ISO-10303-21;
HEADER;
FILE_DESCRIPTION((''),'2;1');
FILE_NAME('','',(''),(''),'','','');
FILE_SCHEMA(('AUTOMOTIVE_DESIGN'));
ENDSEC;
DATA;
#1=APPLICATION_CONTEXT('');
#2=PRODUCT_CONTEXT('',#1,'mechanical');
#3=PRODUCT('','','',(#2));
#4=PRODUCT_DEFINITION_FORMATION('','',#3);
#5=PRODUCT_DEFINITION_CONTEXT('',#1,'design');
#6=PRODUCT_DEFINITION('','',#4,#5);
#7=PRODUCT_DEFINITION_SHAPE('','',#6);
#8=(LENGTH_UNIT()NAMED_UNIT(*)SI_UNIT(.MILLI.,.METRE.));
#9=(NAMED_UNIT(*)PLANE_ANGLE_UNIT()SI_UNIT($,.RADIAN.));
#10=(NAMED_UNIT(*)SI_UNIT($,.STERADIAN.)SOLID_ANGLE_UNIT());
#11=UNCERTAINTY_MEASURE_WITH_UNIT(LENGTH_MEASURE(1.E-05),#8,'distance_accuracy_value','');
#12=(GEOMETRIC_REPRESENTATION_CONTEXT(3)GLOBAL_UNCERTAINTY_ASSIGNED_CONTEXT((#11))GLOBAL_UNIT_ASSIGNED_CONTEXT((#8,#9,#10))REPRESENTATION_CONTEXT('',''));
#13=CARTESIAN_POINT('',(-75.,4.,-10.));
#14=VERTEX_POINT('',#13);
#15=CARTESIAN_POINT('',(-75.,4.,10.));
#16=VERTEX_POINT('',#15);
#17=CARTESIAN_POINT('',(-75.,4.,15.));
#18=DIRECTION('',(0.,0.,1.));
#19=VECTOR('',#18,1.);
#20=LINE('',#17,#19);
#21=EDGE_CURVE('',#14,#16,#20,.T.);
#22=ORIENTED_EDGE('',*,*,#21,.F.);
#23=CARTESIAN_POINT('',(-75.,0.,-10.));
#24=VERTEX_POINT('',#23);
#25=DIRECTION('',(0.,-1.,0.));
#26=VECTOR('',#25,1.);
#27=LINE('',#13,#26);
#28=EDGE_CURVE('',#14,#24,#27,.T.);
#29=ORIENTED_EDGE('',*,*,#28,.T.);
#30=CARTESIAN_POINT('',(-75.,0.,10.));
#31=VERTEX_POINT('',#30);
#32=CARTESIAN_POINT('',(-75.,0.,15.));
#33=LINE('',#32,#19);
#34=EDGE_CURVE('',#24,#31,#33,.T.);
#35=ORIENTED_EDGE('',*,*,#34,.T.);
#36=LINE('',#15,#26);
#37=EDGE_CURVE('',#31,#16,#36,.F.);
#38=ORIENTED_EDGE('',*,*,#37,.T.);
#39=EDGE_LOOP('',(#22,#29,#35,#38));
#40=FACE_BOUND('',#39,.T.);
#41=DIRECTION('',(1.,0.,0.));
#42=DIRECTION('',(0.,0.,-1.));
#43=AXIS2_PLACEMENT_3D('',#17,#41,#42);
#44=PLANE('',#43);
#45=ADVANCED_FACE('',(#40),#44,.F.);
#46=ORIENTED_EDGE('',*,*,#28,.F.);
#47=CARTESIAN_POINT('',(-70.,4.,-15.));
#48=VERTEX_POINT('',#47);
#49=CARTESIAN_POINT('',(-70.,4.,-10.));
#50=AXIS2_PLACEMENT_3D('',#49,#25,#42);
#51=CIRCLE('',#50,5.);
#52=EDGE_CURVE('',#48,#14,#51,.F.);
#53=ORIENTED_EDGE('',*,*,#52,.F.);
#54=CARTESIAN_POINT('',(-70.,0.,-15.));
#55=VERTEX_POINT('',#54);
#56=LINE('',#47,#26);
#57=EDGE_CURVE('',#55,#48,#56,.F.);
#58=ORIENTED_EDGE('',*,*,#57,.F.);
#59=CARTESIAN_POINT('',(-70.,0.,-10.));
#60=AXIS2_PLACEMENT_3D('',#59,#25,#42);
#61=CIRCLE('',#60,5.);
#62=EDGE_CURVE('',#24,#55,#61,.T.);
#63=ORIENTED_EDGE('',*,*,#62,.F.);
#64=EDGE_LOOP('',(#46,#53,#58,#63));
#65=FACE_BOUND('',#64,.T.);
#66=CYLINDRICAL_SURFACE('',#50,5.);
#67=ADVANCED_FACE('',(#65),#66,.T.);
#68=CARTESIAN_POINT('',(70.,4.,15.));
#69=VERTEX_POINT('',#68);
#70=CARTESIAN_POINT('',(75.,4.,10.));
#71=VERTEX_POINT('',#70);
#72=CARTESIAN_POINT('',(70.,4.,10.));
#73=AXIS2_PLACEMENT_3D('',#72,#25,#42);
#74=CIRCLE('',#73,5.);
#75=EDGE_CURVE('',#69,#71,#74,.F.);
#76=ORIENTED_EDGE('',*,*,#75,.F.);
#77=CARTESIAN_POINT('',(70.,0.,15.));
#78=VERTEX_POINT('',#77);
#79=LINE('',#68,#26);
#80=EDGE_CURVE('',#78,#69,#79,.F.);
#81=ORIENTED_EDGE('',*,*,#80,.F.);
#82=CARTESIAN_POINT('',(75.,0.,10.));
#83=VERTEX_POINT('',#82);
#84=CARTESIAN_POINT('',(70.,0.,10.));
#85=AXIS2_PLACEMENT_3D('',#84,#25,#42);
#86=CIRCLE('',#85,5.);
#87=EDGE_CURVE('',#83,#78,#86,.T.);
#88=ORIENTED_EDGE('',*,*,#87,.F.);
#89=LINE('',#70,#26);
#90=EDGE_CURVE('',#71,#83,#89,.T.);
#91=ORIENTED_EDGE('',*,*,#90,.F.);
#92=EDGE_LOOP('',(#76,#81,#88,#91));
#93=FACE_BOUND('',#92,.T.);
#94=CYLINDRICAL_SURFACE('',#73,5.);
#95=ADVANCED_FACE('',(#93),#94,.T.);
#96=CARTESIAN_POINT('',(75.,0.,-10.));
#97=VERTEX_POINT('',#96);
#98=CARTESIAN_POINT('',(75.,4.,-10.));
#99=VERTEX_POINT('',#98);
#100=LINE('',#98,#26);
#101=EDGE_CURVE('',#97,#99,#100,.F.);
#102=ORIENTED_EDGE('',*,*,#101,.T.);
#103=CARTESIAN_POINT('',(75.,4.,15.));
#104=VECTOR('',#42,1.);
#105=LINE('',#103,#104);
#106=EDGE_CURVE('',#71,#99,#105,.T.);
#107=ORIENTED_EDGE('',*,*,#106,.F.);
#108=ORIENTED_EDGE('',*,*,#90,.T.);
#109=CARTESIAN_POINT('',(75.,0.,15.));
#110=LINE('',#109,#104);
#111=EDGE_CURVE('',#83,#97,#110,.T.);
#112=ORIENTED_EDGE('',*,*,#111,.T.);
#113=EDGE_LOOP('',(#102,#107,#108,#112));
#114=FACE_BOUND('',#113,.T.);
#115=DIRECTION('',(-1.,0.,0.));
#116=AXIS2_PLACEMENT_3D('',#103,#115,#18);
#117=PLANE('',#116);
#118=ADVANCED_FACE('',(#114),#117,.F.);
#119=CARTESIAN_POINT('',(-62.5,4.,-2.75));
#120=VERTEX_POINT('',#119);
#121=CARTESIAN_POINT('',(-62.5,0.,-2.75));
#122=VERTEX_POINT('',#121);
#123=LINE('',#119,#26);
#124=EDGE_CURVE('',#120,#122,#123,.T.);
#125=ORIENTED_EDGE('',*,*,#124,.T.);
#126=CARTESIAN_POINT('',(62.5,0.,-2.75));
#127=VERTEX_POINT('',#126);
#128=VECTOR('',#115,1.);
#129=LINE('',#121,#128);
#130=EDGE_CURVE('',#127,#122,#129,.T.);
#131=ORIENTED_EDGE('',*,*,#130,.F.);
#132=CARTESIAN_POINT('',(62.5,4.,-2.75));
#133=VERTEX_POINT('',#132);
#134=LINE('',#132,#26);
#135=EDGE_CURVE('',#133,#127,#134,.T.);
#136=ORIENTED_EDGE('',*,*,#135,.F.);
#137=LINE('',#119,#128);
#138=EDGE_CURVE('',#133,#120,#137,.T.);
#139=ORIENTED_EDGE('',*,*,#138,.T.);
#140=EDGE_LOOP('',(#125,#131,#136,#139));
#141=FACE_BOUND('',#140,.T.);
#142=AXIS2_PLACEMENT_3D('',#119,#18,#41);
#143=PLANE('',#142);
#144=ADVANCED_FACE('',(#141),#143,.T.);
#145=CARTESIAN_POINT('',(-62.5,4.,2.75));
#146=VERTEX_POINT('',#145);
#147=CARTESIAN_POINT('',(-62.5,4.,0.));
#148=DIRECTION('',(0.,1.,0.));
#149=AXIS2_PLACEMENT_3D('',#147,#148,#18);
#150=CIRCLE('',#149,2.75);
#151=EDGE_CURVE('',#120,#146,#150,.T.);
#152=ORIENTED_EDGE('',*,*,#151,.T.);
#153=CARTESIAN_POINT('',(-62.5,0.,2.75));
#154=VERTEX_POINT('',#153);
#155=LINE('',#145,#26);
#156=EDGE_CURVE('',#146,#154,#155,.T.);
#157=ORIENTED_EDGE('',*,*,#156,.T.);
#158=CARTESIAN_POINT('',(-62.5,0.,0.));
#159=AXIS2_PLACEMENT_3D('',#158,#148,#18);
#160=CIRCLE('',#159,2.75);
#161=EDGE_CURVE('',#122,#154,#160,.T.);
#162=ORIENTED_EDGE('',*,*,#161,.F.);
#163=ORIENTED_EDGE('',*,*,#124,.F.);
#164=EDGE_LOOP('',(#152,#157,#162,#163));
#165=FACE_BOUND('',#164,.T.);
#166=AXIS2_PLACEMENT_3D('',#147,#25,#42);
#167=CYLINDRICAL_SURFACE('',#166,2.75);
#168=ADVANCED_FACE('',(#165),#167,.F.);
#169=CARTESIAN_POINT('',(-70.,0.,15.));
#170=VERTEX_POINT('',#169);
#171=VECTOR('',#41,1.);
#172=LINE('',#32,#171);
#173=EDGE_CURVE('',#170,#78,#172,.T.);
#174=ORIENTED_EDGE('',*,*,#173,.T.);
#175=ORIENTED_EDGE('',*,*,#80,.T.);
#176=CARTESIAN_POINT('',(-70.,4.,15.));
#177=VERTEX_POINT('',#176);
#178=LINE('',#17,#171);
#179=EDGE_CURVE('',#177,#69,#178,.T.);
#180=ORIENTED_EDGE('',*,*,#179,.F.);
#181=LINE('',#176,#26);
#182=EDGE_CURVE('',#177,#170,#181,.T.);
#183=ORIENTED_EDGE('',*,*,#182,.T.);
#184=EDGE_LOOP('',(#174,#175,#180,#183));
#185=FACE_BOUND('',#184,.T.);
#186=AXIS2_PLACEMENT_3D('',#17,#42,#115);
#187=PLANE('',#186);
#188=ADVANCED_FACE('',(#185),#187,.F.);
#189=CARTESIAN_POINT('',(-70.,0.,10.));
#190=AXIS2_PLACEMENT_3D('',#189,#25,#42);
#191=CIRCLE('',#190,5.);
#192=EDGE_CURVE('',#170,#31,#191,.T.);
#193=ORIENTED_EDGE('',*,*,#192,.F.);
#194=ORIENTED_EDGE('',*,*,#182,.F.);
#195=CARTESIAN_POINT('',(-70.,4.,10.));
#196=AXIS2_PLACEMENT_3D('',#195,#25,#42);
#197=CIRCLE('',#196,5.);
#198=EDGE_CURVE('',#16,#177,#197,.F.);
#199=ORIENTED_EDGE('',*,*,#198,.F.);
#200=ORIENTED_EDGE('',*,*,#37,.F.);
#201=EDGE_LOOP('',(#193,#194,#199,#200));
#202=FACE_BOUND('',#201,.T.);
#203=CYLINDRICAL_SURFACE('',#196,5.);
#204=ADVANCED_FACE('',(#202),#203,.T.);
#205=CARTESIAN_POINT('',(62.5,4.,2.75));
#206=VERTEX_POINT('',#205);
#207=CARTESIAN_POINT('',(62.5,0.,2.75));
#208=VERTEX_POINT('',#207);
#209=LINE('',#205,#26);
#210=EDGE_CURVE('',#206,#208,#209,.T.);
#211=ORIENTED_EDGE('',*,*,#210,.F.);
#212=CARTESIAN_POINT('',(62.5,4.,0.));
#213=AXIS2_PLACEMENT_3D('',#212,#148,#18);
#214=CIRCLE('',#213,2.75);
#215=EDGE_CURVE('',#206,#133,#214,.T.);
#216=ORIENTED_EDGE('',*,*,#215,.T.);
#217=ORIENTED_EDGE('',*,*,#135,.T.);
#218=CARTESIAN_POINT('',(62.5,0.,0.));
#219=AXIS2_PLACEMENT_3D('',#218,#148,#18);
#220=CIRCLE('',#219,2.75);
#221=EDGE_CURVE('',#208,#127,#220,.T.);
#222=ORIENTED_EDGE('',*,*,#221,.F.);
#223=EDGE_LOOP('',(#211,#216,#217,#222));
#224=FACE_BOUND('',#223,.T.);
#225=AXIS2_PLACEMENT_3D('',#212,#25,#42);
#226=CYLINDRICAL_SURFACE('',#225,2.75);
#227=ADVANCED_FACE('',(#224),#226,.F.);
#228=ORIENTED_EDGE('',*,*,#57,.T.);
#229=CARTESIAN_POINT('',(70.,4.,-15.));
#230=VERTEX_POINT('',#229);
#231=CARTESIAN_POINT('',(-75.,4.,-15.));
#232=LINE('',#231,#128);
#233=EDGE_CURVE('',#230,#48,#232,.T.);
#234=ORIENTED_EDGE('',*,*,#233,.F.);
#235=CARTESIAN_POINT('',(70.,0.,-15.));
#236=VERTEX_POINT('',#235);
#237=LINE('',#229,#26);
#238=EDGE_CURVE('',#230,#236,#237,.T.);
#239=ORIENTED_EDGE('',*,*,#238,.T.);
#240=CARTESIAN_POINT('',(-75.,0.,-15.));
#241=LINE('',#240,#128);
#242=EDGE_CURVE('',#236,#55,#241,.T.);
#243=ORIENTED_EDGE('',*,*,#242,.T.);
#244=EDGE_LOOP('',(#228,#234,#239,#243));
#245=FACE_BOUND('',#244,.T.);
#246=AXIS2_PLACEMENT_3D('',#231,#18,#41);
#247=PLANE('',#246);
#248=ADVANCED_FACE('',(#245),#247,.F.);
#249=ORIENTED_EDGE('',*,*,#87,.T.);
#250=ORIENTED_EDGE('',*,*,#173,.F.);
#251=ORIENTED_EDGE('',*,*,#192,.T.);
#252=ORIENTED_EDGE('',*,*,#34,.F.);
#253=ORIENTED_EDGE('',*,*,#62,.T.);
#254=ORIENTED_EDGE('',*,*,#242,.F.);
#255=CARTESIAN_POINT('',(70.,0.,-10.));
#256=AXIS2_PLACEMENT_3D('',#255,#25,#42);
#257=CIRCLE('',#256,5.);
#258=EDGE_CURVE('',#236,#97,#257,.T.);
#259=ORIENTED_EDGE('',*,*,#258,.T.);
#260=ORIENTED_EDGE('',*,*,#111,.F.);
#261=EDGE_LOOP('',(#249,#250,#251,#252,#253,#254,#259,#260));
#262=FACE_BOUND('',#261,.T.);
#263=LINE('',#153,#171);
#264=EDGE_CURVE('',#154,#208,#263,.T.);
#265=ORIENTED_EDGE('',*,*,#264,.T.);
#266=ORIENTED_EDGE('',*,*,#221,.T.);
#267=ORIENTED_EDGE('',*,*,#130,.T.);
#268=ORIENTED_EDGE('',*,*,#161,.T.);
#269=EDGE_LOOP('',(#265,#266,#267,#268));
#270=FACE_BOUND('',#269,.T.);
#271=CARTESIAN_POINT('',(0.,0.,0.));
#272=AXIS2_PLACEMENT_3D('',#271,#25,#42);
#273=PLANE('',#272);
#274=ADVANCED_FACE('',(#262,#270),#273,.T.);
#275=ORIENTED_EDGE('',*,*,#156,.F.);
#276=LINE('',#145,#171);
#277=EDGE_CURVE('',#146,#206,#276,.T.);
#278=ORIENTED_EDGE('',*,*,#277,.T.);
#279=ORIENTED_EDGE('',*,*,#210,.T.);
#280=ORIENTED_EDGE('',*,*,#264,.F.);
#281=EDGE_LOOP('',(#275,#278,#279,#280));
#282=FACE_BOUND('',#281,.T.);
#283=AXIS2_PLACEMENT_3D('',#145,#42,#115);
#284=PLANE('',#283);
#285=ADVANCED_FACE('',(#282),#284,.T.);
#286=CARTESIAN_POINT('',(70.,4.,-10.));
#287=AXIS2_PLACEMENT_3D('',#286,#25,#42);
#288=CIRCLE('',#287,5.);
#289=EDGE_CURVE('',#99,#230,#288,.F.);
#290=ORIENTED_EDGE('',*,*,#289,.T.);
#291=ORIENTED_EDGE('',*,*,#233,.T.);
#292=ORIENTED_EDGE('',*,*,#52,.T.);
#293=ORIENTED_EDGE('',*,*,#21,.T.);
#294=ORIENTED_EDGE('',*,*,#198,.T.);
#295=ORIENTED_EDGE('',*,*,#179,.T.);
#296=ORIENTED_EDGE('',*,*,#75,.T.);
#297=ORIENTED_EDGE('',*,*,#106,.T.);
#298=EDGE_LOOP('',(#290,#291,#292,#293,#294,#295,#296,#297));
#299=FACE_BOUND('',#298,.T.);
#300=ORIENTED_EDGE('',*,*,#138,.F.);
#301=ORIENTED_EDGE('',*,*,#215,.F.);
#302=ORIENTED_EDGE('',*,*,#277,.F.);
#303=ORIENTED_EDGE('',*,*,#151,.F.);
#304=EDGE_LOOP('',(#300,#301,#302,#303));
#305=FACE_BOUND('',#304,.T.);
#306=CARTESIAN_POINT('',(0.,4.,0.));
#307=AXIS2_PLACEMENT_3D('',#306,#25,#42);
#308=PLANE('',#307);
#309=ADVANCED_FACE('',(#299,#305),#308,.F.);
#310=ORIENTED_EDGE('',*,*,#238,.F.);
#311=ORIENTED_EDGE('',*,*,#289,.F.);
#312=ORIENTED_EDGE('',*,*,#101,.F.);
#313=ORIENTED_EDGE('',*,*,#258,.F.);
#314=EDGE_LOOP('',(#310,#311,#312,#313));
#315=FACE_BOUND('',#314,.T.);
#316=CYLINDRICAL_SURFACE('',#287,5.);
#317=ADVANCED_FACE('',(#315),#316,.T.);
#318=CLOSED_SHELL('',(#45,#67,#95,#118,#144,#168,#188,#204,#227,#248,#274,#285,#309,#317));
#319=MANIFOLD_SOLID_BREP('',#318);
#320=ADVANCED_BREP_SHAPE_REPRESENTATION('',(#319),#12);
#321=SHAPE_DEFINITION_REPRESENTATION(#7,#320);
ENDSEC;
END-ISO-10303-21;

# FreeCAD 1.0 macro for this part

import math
import FreeCAD as App
import Part
import Sketcher
from FreeCAD import Vector
Q = App.Units.Quantity


def edges_at(feature, points):
    """Names of the edges that pass closest to the given points."""
    edges = feature.Shape.Edges
    near = lambda p: min(range(len(edges)), key=lambda i: edges[i].distToShape(Part.Vertex(*p))[0])
    return sorted({f"Edge{near(p) + 1}" for p in points})


def add_polygon(sketch, points):
    """Adds a closed chain of lines whose ends are joined by coincident constraints."""
    first, n = sketch.GeometryCount, len(points)
    for a, b in zip(points, points[1:] + points[:1]):
        sketch.addGeometry(Part.LineSegment(App.Vector(*a, 0), App.Vector(*b, 0)), False)
    for i in range(n):
        sketch.addConstraint(Sketcher.Constraint("Coincident", first + i, 2, first + (i + 1) % n, 1))

doc = App.newDocument("Part")
params = doc.addObject("Spreadsheet::Sheet", "Params")
for row, (alias, value) in enumerate([
    ("sketch1_width", "150 mm"),
    ("sketch1_width2", "125 mm"),
    ("sketch1_height", "30 mm"),
    ("sketch1_radius", "2.75 mm"),
    ("pad1_length", "4 mm"),
    ("fillet_radius", "5 mm"),
], start=1):
    params.set(f"A{row}", alias)
    params.set(f"B{row}", "=" + value)
    params.setAlias(f"B{row}", alias)

body = doc.addObject("PartDesign::Body", "Body")

sketch1 = body.newObject("Sketcher::SketchObject", "Sketch")
sketch1.AttachmentSupport = (doc.getObject("XZ_Plane"), [""])
sketch1.MapMode = "FlatFace"
add_polygon(sketch1, [(-75, -15), (-75, 15), (75, 15), (75, -15)])
sketch1.addGeometry(Part.ArcOfCircle(Part.Circle(Vector(-62.5, 0, 0), Vector(0, 0, 1), 2.8), math.radians(90), math.radians(270)), False)
sketch1.addGeometry(Part.LineSegment(Vector(-62.5, -2.8, 0), Vector(62.5, -2.8, 0)), False)
sketch1.addGeometry(Part.ArcOfCircle(Part.Circle(Vector(62.5, 0, 0), Vector(0, 0, 1), 2.8), math.radians(-90), math.radians(90)), False)
sketch1.addGeometry(Part.LineSegment(Vector(62.5, 2.8, 0), Vector(-62.5, 2.8, 0)), False)
sketch1.addConstraint([
    Sketcher.Constraint("Tangent", 4, 2, 5, 1),
    Sketcher.Constraint("Tangent", 5, 2, 6, 1),
    Sketcher.Constraint("Tangent", 6, 2, 7, 1),
    Sketcher.Constraint("Tangent", 7, 2, 4, 1),
    Sketcher.Constraint("Vertical", 0),
    Sketcher.Constraint("Horizontal", 1),
    Sketcher.Constraint("Vertical", 2),
    Sketcher.Constraint("Horizontal", 3),
    Sketcher.Constraint("Horizontal", 5),
    Sketcher.Constraint("Horizontal", 7),
    Sketcher.Constraint("Symmetric", 4, 3, 6, 3, -1, 1),
    Sketcher.Constraint("Symmetric", 0, 2, 2, 2, -1, 1),
    Sketcher.Constraint("DistanceX", 1, 1, 1, 2, Q("150 mm")),
    Sketcher.Constraint("DistanceX", 5, 1, 5, 2, Q("125 mm")),
    Sketcher.Constraint("DistanceY", 0, 1, 0, 2, Q("30 mm")),
    Sketcher.Constraint("Radius", 4, Q("2.75 mm")),
])
sketch1.setExpression("Constraints[16]", "Params.sketch1_width")
sketch1.setExpression("Constraints[17]", "Params.sketch1_width2")
sketch1.setExpression("Constraints[18]", "Params.sketch1_height")
sketch1.setExpression("Constraints[19]", "Params.sketch1_radius")
pad1 = body.newObject("PartDesign::Pad", "Pad")
pad1.Profile = sketch1
pad1.setExpression("Length", "Params.pad1_length")
pad1.Reversed = True
doc.recompute()

fillet = body.newObject("PartDesign::Fillet", "Fillet")
fillet.Base = (pad1, edges_at(pad1, [
    (75, 2, 15),
    (-75, 2, 15),
    (-75, 2, -15),
    (75, 2, -15),
]))
fillet.setExpression("Radius", "Params.fillet_radius")

doc.recompute()
